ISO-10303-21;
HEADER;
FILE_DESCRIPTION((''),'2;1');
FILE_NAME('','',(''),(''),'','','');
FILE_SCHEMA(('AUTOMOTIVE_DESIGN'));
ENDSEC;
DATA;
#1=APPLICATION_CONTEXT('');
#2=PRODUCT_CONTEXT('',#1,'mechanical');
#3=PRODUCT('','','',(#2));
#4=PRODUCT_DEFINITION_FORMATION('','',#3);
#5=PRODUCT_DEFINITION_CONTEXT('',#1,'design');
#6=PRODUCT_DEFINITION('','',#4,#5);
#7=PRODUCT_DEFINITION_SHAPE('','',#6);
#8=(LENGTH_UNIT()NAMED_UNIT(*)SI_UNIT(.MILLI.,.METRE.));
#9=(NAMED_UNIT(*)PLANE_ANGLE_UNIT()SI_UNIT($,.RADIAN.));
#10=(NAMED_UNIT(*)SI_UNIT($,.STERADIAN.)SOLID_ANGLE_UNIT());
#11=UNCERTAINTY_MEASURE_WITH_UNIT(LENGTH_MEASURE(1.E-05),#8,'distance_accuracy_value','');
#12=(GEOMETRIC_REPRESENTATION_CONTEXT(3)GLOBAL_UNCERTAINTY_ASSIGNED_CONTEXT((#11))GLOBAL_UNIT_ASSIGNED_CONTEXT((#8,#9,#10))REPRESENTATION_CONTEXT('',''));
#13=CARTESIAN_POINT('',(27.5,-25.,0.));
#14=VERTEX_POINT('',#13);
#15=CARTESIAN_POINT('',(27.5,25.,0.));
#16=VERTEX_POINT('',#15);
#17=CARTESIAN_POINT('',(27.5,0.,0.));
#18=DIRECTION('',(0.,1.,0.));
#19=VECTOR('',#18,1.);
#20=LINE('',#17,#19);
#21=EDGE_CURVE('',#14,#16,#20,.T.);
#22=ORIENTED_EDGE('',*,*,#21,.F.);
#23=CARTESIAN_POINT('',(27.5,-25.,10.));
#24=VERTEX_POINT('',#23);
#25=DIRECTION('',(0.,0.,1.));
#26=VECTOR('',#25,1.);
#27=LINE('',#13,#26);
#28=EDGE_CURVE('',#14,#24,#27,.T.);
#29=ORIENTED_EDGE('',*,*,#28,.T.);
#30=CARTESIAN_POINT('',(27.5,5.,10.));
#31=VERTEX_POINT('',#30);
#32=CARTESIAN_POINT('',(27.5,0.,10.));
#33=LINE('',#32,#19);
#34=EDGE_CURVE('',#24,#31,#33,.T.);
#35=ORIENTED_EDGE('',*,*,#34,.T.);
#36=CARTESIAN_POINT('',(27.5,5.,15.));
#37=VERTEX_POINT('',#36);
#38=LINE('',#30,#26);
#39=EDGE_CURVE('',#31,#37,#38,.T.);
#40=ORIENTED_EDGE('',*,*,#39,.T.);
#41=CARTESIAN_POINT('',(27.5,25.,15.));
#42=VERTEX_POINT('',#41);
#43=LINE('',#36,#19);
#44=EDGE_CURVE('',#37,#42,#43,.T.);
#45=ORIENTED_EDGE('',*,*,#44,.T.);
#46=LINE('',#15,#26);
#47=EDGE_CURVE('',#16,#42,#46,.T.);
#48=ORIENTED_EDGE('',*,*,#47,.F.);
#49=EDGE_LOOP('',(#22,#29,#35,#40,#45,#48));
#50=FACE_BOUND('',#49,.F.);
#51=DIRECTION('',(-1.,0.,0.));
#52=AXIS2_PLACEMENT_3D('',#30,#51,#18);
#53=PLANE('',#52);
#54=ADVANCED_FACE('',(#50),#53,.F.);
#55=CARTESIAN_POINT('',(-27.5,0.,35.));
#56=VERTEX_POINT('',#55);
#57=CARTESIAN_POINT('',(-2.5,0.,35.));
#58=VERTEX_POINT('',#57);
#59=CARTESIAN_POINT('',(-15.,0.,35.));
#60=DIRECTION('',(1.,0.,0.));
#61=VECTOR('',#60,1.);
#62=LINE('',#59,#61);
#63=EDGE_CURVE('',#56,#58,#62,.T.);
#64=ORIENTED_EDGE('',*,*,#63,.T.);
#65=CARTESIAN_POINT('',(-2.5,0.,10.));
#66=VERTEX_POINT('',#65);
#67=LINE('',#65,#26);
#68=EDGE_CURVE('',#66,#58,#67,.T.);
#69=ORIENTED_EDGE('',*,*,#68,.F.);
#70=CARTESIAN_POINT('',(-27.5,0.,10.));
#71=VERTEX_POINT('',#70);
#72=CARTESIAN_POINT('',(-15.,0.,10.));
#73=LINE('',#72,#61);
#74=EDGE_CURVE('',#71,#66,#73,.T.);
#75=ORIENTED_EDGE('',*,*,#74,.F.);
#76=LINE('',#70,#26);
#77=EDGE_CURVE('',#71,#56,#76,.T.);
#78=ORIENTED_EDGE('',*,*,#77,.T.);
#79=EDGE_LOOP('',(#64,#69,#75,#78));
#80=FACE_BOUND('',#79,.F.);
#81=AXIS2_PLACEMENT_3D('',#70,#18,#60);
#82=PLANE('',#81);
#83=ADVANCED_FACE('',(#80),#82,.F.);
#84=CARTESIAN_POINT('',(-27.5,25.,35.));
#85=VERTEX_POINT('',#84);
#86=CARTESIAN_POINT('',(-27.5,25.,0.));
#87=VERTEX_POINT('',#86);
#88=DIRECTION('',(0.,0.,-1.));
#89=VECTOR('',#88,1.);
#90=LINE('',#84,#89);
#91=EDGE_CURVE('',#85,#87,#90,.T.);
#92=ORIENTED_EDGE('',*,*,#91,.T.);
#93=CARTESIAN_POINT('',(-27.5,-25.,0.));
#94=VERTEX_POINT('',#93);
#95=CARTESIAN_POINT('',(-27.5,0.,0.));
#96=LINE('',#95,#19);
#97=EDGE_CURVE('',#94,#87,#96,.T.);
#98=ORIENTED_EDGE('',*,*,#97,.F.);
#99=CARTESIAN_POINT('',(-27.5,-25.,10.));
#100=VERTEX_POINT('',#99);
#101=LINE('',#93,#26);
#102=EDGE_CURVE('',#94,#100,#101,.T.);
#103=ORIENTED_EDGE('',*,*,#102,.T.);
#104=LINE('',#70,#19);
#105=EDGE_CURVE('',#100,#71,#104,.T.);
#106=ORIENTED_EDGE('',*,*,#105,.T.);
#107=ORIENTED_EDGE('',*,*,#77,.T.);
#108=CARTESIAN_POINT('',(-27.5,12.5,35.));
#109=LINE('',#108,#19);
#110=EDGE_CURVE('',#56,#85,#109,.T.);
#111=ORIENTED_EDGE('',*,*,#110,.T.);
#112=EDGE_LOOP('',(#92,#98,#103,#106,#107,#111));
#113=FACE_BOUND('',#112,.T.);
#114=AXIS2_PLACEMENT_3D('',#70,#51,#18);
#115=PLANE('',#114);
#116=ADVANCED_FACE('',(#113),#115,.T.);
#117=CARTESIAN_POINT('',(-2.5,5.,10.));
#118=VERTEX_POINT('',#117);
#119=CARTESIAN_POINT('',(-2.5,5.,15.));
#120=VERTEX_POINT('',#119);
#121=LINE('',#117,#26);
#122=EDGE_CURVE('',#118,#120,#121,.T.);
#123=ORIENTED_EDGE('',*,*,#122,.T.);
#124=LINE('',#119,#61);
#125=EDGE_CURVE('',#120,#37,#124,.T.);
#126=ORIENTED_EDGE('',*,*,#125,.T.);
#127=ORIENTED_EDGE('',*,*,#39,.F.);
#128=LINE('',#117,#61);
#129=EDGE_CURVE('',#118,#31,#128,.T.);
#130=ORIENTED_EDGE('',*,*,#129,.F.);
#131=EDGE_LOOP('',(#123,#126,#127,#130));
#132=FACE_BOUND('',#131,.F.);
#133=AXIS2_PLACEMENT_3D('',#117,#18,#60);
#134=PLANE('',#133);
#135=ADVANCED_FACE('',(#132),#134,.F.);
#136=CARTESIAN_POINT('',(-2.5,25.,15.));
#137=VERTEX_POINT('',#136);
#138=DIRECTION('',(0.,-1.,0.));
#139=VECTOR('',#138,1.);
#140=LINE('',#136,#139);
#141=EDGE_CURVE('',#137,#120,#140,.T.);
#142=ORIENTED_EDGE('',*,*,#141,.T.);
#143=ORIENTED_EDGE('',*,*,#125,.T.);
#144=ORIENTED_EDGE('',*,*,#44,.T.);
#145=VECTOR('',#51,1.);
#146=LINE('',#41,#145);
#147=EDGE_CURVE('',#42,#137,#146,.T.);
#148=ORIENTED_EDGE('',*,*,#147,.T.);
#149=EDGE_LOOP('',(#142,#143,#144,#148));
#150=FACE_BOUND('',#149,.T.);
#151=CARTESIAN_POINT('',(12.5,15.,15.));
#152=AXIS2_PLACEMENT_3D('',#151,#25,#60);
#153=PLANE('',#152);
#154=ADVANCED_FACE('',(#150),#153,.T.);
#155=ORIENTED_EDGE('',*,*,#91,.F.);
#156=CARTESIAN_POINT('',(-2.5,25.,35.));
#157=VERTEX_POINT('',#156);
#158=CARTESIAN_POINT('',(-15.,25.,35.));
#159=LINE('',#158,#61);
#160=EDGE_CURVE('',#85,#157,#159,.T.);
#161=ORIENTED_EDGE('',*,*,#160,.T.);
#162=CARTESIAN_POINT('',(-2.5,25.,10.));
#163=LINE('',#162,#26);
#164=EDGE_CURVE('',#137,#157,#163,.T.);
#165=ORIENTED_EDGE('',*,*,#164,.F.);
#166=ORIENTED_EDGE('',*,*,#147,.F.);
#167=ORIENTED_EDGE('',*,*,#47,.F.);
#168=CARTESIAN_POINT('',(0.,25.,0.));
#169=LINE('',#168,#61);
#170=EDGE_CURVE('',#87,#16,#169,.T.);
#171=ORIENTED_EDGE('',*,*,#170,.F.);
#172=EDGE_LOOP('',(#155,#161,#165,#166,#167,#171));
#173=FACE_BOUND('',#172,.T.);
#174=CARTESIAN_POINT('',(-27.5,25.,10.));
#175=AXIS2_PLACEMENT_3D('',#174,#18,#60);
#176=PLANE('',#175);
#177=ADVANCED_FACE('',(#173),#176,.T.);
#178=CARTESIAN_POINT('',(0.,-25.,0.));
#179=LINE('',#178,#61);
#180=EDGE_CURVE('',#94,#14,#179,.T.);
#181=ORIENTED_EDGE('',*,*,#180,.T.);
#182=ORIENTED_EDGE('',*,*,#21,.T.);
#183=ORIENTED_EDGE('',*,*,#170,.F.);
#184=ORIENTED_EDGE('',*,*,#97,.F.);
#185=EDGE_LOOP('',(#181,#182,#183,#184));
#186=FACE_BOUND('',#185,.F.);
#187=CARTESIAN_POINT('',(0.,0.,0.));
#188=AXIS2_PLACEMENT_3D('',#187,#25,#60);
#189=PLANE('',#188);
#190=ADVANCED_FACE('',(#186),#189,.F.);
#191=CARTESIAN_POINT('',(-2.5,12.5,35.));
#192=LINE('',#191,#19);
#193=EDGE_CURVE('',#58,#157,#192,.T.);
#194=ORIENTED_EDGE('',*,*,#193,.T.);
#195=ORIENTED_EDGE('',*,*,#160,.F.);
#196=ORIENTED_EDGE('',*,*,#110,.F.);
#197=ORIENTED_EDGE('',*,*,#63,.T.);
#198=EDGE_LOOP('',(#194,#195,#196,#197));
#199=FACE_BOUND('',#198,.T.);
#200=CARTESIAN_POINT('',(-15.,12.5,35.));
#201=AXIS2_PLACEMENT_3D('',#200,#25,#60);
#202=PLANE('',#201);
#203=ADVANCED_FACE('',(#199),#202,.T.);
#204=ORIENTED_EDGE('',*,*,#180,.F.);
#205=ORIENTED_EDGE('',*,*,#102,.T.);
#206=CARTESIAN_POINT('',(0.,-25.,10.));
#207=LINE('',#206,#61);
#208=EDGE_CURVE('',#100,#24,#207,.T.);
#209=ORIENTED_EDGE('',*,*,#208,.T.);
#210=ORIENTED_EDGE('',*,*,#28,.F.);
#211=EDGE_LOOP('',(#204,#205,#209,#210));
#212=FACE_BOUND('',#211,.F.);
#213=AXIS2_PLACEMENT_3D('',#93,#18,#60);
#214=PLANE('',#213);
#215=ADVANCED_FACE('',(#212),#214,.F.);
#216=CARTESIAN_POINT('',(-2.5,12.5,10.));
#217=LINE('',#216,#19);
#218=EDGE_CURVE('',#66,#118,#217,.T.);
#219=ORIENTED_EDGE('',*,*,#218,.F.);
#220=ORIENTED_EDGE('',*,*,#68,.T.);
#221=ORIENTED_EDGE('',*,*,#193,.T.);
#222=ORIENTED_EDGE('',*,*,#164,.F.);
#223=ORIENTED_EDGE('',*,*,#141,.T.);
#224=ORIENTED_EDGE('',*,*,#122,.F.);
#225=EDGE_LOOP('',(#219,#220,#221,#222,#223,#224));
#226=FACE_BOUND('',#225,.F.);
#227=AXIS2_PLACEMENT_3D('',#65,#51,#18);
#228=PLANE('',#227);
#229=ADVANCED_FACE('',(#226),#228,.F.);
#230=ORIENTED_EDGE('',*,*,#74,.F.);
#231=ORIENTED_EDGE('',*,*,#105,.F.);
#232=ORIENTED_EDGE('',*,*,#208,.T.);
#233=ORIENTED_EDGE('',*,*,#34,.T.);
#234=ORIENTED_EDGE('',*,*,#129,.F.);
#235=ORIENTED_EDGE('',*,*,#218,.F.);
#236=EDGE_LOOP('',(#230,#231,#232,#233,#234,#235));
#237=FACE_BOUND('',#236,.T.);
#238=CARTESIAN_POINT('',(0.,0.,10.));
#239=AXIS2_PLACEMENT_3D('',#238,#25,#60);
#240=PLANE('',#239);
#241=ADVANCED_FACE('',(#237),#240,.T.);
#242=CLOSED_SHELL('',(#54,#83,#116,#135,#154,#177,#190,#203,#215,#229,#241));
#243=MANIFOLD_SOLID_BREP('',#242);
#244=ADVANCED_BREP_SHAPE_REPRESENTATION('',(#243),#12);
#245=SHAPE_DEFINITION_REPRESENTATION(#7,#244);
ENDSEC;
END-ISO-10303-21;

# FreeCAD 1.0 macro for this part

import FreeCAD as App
import Part
import Sketcher
Q = App.Units.Quantity


def add_polygon(sketch, points):
    """Adds a closed chain of lines whose ends are joined by coincident constraints."""
    first, n = sketch.GeometryCount, len(points)
    for a, b in zip(points, points[1:] + points[:1]):
        sketch.addGeometry(Part.LineSegment(App.Vector(*a, 0), App.Vector(*b, 0)), False)
    for i in range(n):
        sketch.addConstraint(Sketcher.Constraint("Coincident", first + i, 2, first + (i + 1) % n, 1))

doc = App.newDocument("Part")
body = doc.addObject("PartDesign::Body", "Body")

# Sketch on XY plane
sketch1 = doc.addObject("Sketcher::SketchObject", "Sketch")
body.addObject(sketch1)
sketch1.AttachmentSupport = (doc.XY_Plane, [""])
sketch1.MapMode = "FlatFace"
add_polygon(sketch1, [(-27.5, 25), (-27.5, -25), (27.5, -25), (27.5, 25)])  # lines 0-3
sketch1.addConstraint([
    Sketcher.Constraint("Vertical", 0),
    Sketcher.Constraint("Horizontal", 1),
    Sketcher.Constraint("Vertical", 2),
    Sketcher.Constraint("Horizontal", 3),
    Sketcher.Constraint("Symmetric", 0, 2, 2, 2, -1, 1),
    Sketcher.Constraint("DistanceX", 1, 1, 1, 2, Q("55 mm")),
    Sketcher.Constraint("DistanceY", 0, 2, 0, 1, Q("50 mm")),
])
pad1 = doc.addObject("PartDesign::Pad", "Pad")
body.addObject(pad1)
pad1.Profile = sketch1
pad1.Length = 10

# Sketch on XY plane
sketch2 = doc.addObject("Sketcher::SketchObject", "Sketch001")
body.addObject(sketch2)
sketch2.AttachmentSupport = (doc.XY_Plane, [""])
sketch2.MapMode = "FlatFace"
sketch2.AttachmentOffset = App.Placement(App.Vector(0, 0, 10), App.Rotation())
add_polygon(sketch2, [(-27.5, 25), (-27.5, 0), (-2.5, 0), (-2.5, 25)])  # lines 0-3
sketch2.addConstraint([
    Sketcher.Constraint("Vertical", 0),
    Sketcher.Constraint("Horizontal", 1),
    Sketcher.Constraint("Vertical", 2),
    Sketcher.Constraint("Horizontal", 3),
    Sketcher.Constraint("PointOnObject", 0, 2, -1),
    Sketcher.Constraint("Equal", 3, 0),
    Sketcher.Constraint("DistanceX", 1, 1, 1, 2, Q("25 mm")),
    Sketcher.Constraint("DistanceX", 0, 2, -1, 1, Q("27.5 mm")),
])
pad2 = doc.addObject("PartDesign::Pad", "Pad001")
body.addObject(pad2)
pad2.Profile = sketch2
pad2.Length = 25

# Sketch on XY plane
sketch3 = doc.addObject("Sketcher::SketchObject", "Sketch002")
body.addObject(sketch3)
sketch3.AttachmentSupport = (doc.XY_Plane, [""])
sketch3.MapMode = "FlatFace"
sketch3.AttachmentOffset = App.Placement(App.Vector(0, 0, 10), App.Rotation())
add_polygon(sketch3, [(-2.5, 5), (27.5, 5), (27.5, 25), (-2.5, 25)])  # lines 0-3
sketch3.addConstraint([
    Sketcher.Constraint("Horizontal", 0),
    Sketcher.Constraint("Vertical", 1),
    Sketcher.Constraint("Horizontal", 2),
    Sketcher.Constraint("Vertical", 3),
    Sketcher.Constraint("DistanceX", 0, 1, 0, 2, Q("30 mm")),
    Sketcher.Constraint("DistanceY", 1, 1, 1, 2, Q("20 mm")),
    Sketcher.Constraint("DistanceY", -1, 1, 0, 2, Q("5 mm")),
    Sketcher.Constraint("DistanceX", -1, 1, 0, 2, Q("27.5 mm")),
])
pad3 = doc.addObject("PartDesign::Pad", "Pad002")
body.addObject(pad3)
pad3.Profile = sketch3
pad3.Length = 5

doc.recompute()
